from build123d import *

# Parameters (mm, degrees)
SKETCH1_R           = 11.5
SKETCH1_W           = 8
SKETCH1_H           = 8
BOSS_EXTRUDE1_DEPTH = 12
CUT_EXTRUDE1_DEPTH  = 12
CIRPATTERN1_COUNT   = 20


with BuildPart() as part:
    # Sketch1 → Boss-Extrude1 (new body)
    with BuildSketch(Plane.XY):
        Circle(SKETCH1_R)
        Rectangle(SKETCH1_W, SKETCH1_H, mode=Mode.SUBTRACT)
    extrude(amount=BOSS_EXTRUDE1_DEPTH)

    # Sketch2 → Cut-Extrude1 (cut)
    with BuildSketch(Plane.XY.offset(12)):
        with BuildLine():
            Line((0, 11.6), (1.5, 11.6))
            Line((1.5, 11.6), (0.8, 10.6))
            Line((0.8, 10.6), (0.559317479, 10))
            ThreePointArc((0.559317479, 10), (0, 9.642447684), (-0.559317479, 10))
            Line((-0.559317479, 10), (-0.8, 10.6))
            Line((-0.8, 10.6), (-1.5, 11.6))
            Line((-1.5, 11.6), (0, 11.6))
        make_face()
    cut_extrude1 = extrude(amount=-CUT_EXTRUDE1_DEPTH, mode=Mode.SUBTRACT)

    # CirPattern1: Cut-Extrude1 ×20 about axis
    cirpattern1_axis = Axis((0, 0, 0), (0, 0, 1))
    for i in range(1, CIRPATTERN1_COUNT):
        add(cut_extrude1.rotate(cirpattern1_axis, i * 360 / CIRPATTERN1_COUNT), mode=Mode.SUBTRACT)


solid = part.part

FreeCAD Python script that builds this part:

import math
import FreeCAD as App
import Part
import Sketcher

V = App.Vector

doc = App.newDocument("Part")
body = doc.addObject("PartDesign::Body", "Body")

# Sketch on XY plane
sketch1 = body.newObject("Sketcher::SketchObject", "Sketch")
sketch1.AttachmentSupport = (doc.getObject("XY_Plane"), [""])
sketch1.MapMode = "FlatFace"
sketch1.addGeometry([
    Part.Circle(V(0, 0, 0), V(0, 0, 1), 11.5),  # 0
    Part.LineSegment(V(4, -4, 0), V(-4, -4, 0)),  # 1
    Part.LineSegment(V(-4, -4, 0), V(-4, 4, 0)),  # 2
    Part.LineSegment(V(-4, 4, 0), V(4, 4, 0)),  # 3
    Part.LineSegment(V(4, 4, 0), V(4, -4, 0)),  # 4
], False)
sketch1.addConstraint([
    Sketcher.Constraint("Coincident", 1, 2, 2, 1),
    Sketcher.Constraint("Coincident", 2, 2, 3, 1),
    Sketcher.Constraint("Coincident", 3, 2, 4, 1),
    Sketcher.Constraint("Coincident", 4, 2, 1, 1),
    Sketcher.Constraint("Horizontal", 1),
    Sketcher.Constraint("Vertical", 2),
    Sketcher.Constraint("Horizontal", 3),
    Sketcher.Constraint("Vertical", 4),
    Sketcher.Constraint("Coincident", 0, 3, -1, 1),
    Sketcher.Constraint("Symmetric", 1, 2, 3, 2, -1, 1),
    Sketcher.Constraint("Equal", 3, 2),
    Sketcher.Constraint("Diameter", 0, 23.0),
    Sketcher.Constraint("DistanceX", 1, 2, 1, 1, 8.0),
])
pad1 = body.newObject("PartDesign::Pad", "Pad")
pad1.Profile = sketch1
pad1.Length = 12

# Sketch on XY plane
sketch2 = body.newObject("Sketcher::SketchObject", "Sketch001")
sketch2.AttachmentSupport = (doc.getObject("XY_Plane"), [""])
sketch2.MapMode = "FlatFace"
sketch2.AttachmentOffset = App.Placement(V(0, 0, 12), App.Rotation())
sketch2.addGeometry([
    Part.LineSegment(V(0.8, 10.6, 0), V(1.5, 11.6, 0)),  # 0
    Part.LineSegment(V(1.5, 11.6, 0), V(-1.5, 11.6, 0)),  # 1
    Part.LineSegment(V(-1.5, 11.6, 0), V(-0.8, 10.6, 0)),  # 2
    Part.LineSegment(V(-0.8, 10.6, 0), V(-0.559317, 10, 0)),  # 3
    Part.ArcOfCircle(Part.Circle(V(0, 10.258693, 0), V(0, 0, 1), 0.616245), math.radians(-155.178748), math.radians(-24.821252)),  # 4
    Part.LineSegment(V(0.559317, 10, 0), V(0.8, 10.6, 0)),  # 5
], False)
sketch2.addConstraint([
    Sketcher.Constraint("Coincident", 0, 2, 1, 1),
    Sketcher.Constraint("Coincident", 1, 2, 2, 1),
    Sketcher.Constraint("Coincident", 2, 2, 3, 1),
    Sketcher.Constraint("Coincident", 3, 2, 4, 1),
    Sketcher.Constraint("Coincident", 4, 2, 5, 1),
    Sketcher.Constraint("Coincident", 5, 2, 0, 1),
    Sketcher.Constraint("Horizontal", 1),
    Sketcher.Constraint("Symmetric", 3, 2, 4, 2, -2),
    Sketcher.Constraint("Symmetric", 2, 2, 5, 2, -2),
    Sketcher.Constraint("Equal", 0, 2),
    Sketcher.Constraint("DistanceX", 1, 2, 1, 1, 3.0),
    Sketcher.Constraint("DistanceY", -1, 1, 3, 2, 10.0),
    Sketcher.Constraint("DistanceY", 2, 2, 1, 2, 1.0),
    Sketcher.Constraint("DistanceY", -1, 1, 0, 2, 11.6),
    Sketcher.Constraint("DistanceX", 2, 2, -1, 1, 0.8),
    Sketcher.Constraint("Radius", 4, 0.616245),
    Sketcher.Constraint("Distance", 3, 0.646474),
])
pocket1 = body.newObject("PartDesign::Pocket", "Pocket")
pocket1.Profile = sketch2
pocket1.Length = 12
doc.recompute()

polarpattern = body.newObject("PartDesign::PolarPattern", "PolarPattern")
polarpattern.Originals = [pocket1]
polarpattern.Axis = (doc.getObject("Z_Axis"), [""])
polarpattern.Angle = 360
polarpattern.Occurrences = 20
body.Tip = polarpattern

doc.recompute()
